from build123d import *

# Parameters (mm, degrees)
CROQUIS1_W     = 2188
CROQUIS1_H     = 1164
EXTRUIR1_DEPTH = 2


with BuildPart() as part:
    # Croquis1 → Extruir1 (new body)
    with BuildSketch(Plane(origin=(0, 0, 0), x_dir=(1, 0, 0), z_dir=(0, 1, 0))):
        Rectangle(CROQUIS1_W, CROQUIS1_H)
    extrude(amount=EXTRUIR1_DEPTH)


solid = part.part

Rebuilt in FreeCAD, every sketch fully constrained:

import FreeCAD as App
import Part
import Sketcher
from FreeCAD import Vector

doc = App.newDocument("Part")
body = doc.addObject("PartDesign::Body", "Body")

sketch1 = body.newObject("Sketcher::SketchObject", "Sketch")
sketch1.AttachmentSupport = (doc.getObject("XZ_Plane"), [""])
sketch1.MapMode = "FlatFace"
sketch1.addGeometry([
    Part.LineSegment(Vector(-1094, -582, 0), Vector(-1094, 582, 0)),
    Part.LineSegment(Vector(-1094, 582, 0), Vector(1094, 582, 0)),
    Part.LineSegment(Vector(1094, 582, 0), Vector(1094, -582, 0)),
    Part.LineSegment(Vector(1094, -582, 0), Vector(-1094, -582, 0)),
], False)
sketch1.addConstraint([
    Sketcher.Constraint("Coincident", 0, 2, 1, 1),
    Sketcher.Constraint("Coincident", 1, 2, 2, 1),
    Sketcher.Constraint("Coincident", 2, 2, 3, 1),
    Sketcher.Constraint("Coincident", 3, 2, 0, 1),
    Sketcher.Constraint("Vertical", 0),
    Sketcher.Constraint("Horizontal", 1),
    Sketcher.Constraint("Vertical", 2),
    Sketcher.Constraint("Horizontal", 3),
    Sketcher.Constraint("Symmetric", 0, 2, 2, 2, -1, 1),
    Sketcher.Constraint("DistanceX", 1, 1, 1, 2, 2188.0),
    Sketcher.Constraint("DistanceY", 0, 1, 0, 2, 1164.0),
])
pad1 = body.newObject("PartDesign::Pad", "Pad")
pad1.Profile = sketch1
pad1.Length = 2
pad1.Reversed = True

doc.recompute()
